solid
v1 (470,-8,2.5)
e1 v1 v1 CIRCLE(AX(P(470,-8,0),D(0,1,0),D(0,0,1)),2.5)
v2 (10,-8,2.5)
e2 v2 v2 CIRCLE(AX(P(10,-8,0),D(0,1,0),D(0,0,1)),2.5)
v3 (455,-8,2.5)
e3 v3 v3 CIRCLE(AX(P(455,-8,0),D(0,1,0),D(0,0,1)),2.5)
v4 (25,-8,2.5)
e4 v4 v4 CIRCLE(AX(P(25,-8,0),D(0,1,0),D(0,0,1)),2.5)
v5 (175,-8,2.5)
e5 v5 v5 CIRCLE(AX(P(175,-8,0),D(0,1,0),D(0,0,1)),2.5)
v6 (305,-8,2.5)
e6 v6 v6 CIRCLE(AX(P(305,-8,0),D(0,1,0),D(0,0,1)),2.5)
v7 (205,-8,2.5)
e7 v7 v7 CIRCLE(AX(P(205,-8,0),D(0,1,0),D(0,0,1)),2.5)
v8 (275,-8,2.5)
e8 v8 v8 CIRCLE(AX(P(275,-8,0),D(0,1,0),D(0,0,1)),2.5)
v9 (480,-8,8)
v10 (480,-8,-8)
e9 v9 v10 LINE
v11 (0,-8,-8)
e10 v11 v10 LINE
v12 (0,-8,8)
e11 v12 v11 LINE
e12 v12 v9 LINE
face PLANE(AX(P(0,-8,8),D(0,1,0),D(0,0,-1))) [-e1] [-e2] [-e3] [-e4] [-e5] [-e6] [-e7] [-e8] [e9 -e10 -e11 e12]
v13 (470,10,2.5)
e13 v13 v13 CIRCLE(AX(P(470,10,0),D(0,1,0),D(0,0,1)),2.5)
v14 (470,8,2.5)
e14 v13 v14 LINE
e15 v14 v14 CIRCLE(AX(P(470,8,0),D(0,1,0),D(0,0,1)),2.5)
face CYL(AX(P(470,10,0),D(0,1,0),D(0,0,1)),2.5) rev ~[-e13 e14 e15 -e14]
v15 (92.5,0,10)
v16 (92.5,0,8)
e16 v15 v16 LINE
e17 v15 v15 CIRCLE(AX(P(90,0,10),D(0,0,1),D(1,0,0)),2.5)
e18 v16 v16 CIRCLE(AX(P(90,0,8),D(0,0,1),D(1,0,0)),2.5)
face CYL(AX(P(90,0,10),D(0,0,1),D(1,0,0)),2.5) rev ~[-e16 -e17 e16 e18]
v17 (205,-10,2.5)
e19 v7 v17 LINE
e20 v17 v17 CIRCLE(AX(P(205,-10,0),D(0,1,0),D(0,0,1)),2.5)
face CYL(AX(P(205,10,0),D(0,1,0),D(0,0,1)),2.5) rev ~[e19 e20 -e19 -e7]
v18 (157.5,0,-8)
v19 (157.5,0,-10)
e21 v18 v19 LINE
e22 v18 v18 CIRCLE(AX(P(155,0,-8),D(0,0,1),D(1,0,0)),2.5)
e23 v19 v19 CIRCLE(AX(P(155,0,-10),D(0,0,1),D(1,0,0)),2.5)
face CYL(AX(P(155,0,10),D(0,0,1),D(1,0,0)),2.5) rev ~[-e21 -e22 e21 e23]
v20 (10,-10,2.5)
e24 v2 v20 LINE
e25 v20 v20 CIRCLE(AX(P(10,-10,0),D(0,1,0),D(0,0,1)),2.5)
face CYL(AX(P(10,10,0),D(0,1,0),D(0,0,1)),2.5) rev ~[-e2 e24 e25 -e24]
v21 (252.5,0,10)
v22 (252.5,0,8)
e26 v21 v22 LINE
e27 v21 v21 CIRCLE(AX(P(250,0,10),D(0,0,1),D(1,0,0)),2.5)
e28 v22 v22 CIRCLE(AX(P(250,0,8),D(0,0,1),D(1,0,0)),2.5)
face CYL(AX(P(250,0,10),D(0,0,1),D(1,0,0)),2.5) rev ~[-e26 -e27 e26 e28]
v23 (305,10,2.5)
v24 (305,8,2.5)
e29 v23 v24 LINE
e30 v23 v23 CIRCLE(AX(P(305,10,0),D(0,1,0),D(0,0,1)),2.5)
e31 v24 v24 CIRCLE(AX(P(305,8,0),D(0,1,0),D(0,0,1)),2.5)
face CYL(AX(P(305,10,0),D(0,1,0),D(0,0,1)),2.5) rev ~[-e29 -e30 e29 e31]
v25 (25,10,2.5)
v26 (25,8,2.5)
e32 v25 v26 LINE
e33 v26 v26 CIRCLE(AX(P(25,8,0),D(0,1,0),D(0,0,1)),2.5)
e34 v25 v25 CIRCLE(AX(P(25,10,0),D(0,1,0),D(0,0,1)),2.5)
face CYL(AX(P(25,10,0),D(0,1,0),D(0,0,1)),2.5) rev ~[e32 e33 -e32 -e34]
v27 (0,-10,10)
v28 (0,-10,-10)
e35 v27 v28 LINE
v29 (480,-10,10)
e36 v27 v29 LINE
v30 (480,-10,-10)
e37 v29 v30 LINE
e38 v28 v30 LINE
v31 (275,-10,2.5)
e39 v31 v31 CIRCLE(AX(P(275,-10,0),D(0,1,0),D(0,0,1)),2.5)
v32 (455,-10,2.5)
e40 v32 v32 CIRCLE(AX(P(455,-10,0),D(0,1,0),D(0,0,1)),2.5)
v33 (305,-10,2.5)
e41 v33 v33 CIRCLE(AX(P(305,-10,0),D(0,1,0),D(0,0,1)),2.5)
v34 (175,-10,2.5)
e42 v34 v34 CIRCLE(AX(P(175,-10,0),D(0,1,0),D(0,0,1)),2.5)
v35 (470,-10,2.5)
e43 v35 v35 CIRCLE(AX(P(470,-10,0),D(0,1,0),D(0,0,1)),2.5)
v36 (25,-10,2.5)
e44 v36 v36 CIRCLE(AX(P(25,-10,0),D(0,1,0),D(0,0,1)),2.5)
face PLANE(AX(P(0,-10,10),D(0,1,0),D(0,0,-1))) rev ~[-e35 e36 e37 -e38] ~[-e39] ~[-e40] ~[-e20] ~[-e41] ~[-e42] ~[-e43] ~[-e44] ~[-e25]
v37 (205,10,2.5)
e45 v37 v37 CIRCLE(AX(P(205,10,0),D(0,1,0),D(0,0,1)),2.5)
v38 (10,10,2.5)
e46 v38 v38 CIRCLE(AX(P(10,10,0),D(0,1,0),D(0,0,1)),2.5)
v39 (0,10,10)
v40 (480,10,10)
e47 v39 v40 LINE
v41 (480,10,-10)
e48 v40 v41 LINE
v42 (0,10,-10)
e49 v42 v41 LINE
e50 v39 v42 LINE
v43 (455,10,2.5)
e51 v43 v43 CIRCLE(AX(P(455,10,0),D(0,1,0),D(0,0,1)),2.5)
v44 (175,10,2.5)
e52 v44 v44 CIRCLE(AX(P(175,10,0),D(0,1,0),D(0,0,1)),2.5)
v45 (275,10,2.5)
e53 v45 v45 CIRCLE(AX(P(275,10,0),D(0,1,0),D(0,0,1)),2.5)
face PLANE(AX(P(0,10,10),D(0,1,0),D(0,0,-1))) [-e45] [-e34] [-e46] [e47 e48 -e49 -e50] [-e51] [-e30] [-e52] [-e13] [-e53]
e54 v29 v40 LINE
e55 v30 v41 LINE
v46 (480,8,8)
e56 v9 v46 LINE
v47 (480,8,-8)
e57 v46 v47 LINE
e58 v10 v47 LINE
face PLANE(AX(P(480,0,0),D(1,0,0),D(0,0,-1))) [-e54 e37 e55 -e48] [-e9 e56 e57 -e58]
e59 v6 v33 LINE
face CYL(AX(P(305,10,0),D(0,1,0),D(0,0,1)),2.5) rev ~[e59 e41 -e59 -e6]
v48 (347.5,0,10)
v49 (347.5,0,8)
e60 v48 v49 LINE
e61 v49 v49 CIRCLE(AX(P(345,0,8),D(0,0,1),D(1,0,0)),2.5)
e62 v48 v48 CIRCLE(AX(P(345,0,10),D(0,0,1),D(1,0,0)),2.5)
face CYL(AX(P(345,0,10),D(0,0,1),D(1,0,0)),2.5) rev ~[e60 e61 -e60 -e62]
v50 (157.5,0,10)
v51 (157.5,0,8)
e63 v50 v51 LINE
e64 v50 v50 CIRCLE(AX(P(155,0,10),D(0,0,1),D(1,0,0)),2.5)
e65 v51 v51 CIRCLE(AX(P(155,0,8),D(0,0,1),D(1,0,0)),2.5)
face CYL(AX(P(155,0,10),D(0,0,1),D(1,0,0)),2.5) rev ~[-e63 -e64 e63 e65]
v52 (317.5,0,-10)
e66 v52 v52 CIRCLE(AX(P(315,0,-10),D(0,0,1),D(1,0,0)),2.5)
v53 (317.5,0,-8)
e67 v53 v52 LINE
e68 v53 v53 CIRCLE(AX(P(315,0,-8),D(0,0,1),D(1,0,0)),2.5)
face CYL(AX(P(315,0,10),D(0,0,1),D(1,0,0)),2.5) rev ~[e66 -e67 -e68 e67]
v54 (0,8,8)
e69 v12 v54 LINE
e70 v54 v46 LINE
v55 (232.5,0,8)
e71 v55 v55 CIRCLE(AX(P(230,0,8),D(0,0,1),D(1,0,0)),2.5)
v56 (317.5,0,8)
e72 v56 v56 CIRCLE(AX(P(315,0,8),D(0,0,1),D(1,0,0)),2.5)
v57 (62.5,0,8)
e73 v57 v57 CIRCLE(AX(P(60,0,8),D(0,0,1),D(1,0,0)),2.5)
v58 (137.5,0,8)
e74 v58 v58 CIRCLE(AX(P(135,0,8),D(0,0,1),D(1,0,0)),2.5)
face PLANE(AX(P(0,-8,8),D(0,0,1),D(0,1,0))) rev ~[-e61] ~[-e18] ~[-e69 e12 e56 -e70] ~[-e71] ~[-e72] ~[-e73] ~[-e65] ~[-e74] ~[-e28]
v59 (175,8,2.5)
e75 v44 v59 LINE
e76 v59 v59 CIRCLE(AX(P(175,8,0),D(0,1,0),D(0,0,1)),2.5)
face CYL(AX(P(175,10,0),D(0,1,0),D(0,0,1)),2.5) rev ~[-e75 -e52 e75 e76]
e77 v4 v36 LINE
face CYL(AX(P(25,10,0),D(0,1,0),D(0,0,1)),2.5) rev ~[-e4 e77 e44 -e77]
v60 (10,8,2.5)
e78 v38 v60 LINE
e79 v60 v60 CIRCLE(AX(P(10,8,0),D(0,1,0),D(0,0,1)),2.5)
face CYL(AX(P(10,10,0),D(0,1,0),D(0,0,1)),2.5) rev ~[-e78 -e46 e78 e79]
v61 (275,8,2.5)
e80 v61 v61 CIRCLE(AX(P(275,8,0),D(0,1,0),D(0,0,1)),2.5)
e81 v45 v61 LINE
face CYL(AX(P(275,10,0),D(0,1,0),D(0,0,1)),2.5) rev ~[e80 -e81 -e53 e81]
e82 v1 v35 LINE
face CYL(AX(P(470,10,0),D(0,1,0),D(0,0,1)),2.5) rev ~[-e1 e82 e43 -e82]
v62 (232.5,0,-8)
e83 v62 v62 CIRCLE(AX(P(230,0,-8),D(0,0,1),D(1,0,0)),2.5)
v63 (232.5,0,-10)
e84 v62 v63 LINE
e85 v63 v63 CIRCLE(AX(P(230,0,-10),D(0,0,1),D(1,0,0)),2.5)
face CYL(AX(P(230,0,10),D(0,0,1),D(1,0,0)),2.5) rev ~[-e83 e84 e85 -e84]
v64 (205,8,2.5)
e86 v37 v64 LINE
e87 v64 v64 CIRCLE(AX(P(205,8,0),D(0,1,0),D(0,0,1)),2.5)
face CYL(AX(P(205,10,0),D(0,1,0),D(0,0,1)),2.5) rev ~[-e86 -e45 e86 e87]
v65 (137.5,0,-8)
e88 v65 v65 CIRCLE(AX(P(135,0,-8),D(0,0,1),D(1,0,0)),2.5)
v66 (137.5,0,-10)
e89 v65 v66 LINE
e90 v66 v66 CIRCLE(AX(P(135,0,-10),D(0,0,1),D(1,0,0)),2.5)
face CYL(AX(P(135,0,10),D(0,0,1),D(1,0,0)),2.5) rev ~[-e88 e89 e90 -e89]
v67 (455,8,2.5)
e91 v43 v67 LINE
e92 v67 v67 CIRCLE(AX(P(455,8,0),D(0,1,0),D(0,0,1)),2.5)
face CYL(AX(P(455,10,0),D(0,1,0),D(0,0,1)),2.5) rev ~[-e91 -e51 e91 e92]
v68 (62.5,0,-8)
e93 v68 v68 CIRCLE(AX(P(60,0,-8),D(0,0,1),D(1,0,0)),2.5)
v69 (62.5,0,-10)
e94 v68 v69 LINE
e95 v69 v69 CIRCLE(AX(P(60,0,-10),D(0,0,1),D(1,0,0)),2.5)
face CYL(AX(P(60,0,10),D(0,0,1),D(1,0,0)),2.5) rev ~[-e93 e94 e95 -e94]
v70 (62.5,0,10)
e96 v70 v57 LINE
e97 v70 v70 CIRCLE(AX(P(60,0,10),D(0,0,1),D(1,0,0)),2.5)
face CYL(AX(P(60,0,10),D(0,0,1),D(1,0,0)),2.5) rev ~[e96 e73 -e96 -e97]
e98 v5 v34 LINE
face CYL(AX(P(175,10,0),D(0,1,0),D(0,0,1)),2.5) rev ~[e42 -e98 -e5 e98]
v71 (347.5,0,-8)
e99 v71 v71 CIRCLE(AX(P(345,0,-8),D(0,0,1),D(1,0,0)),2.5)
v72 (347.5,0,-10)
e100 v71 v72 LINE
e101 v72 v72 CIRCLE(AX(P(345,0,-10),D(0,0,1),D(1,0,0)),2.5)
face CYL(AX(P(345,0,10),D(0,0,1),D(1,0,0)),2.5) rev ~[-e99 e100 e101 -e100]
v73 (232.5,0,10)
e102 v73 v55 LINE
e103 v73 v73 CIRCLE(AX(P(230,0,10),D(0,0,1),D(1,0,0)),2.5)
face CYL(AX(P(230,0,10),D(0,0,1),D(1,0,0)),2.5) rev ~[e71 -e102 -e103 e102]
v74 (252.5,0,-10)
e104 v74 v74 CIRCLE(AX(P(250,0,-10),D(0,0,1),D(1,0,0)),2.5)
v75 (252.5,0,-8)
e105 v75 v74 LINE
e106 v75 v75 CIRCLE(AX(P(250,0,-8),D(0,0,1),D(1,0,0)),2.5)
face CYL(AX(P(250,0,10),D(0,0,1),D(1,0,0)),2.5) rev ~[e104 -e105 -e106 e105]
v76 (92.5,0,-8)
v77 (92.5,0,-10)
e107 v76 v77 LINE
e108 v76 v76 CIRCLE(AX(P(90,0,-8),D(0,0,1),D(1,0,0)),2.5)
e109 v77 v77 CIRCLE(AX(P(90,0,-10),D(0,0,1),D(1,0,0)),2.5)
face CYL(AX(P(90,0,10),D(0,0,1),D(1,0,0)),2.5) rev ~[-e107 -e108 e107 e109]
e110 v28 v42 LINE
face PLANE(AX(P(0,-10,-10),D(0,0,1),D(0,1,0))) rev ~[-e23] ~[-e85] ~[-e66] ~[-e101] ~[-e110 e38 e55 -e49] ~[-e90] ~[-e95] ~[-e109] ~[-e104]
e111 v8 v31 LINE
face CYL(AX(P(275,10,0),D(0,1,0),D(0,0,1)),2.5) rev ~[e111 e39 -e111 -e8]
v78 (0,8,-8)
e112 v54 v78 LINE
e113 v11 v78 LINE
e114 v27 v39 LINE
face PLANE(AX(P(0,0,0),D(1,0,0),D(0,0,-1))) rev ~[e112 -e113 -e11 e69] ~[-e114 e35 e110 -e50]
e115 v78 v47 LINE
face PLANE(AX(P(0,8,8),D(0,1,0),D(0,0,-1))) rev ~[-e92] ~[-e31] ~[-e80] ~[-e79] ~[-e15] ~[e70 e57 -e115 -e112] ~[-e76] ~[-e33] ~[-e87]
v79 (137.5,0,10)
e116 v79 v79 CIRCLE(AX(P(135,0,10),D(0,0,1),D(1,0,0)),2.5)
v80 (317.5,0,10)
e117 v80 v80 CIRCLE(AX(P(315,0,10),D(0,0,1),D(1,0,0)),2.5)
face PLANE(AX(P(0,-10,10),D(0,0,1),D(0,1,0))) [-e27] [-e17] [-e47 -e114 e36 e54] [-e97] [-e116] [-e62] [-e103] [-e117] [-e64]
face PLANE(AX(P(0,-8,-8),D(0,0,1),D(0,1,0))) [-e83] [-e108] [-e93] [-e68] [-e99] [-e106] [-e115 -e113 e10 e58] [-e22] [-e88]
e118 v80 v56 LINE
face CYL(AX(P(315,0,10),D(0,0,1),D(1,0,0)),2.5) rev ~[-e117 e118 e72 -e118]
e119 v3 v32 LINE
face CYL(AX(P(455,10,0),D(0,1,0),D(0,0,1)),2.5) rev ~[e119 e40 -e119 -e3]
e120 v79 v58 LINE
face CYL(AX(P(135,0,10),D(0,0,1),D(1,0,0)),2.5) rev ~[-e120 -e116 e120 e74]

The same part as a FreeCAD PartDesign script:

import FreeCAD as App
import Part
import Sketcher


def add_polygon(sketch, points):
    """Adds a closed chain of lines whose ends are joined by coincident constraints."""
    first, n = sketch.GeometryCount, len(points)
    for a, b in zip(points, points[1:] + points[:1]):
        sketch.addGeometry(Part.LineSegment(App.Vector(*a, 0), App.Vector(*b, 0)), False)
    for i in range(n):
        sketch.addConstraint(Sketcher.Constraint("Coincident", first + i, 2, first + (i + 1) % n, 1))

doc = App.newDocument("Part")
body = doc.addObject("PartDesign::Body", "Body")

# Sketch on YZ plane
sketch1 = doc.addObject("Sketcher::SketchObject", "Sketch")
body.addObject(sketch1)
sketch1.AttachmentSupport = (doc.YZ_Plane, [""])
sketch1.MapMode = "FlatFace"
add_polygon(sketch1, [(10, 10), (-10, 10), (-10, -10), (10, -10)])  # lines 0-3
add_polygon(sketch1, [(-8, -8), (-8, 8), (8, 8), (8, -8)])  # lines 4-7
sketch1.addConstraint(Sketcher.Constraint("Horizontal", 0))
sketch1.addConstraint(Sketcher.Constraint("Vertical", 1))
sketch1.addConstraint(Sketcher.Constraint("Horizontal", 2))
sketch1.addConstraint(Sketcher.Constraint("Vertical", 3))
sketch1.addConstraint(Sketcher.Constraint("Vertical", 4))
sketch1.addConstraint(Sketcher.Constraint("Horizontal", 5))
sketch1.addConstraint(Sketcher.Constraint("Vertical", 6))
sketch1.addConstraint(Sketcher.Constraint("Horizontal", 7))
sketch1.addConstraint(Sketcher.Constraint("Symmetric", 0, 2, 2, 2, -1, 1))
sketch1.addConstraint(Sketcher.Constraint("Symmetric", 4, 2, 6, 2, -1, 1))
sketch1.addConstraint(Sketcher.Constraint("Equal", 2, 1))
sketch1.addConstraint(Sketcher.Constraint("Equal", 7, 4))
sketch1.addConstraint(Sketcher.Constraint("DistanceX", 0, 2, 0, 1, 20.0))
sketch1.addConstraint(Sketcher.Constraint("DistanceX", 5, 1, 5, 2, 16.0))
pad1 = doc.addObject("PartDesign::Pad", "Pad")
body.addObject(pad1)
pad1.Profile = sketch1
pad1.Length = 480

# Sketch on XZ plane
sketch2 = doc.addObject("Sketcher::SketchObject", "Sketch001")
body.addObject(sketch2)
sketch2.AttachmentSupport = (doc.XZ_Plane, [""])
sketch2.MapMode = "FlatFace"
sketch2.AttachmentOffset = App.Placement(App.Vector(0, 0, -10), App.Rotation())
sketch2.addGeometry(Part.Circle(App.Vector(10, 0, 0), App.Vector(0, 0, 1), 2.5), False)
sketch2.addGeometry(Part.Circle(App.Vector(470, 0, 0), App.Vector(0, 0, 1), 2.5), False)
sketch2.addGeometry(Part.Circle(App.Vector(25, 0, 0), App.Vector(0, 0, 1), 2.5), False)
sketch2.addGeometry(Part.Circle(App.Vector(455, 0, 0), App.Vector(0, 0, 1), 2.5), False)
sketch2.addConstraint(Sketcher.Constraint("Equal", 0, 1))
sketch2.addConstraint(Sketcher.Constraint("Equal", 1, 2))
sketch2.addConstraint(Sketcher.Constraint("Equal", 2, 3))
sketch2.addConstraint(Sketcher.Constraint("PointOnObject", 0, 3, -1))
sketch2.addConstraint(Sketcher.Constraint("PointOnObject", 1, 3, -1))
sketch2.addConstraint(Sketcher.Constraint("PointOnObject", 2, 3, -1))
sketch2.addConstraint(Sketcher.Constraint("PointOnObject", 3, 3, -1))
sketch2.addConstraint(Sketcher.Constraint("Diameter", 0, 5.0))
sketch2.addConstraint(Sketcher.Constraint("DistanceX", -1, 1, 0, 3, 10.0))
sketch2.addConstraint(Sketcher.Constraint("DistanceX", -1, 1, 1, 3, 470.0))
sketch2.addConstraint(Sketcher.Constraint("DistanceX", -1, 1, 2, 3, 25.0))
sketch2.addConstraint(Sketcher.Constraint("DistanceX", -1, 1, 3, 3, 455.0))
pocket1 = doc.addObject("PartDesign::Pocket", "Pocket")
body.addObject(pocket1)
pocket1.Profile = sketch2
pocket1.Type = "ThroughAll"
pocket1.Reversed = True

# Sketch on XZ plane
sketch3 = doc.addObject("Sketcher::SketchObject", "Sketch002")
body.addObject(sketch3)
sketch3.AttachmentSupport = (doc.XZ_Plane, [""])
sketch3.MapMode = "FlatFace"
sketch3.AttachmentOffset = App.Placement(App.Vector(0, 0, -10), App.Rotation())
sketch3.addGeometry(Part.Circle(App.Vector(175, 0, 0), App.Vector(0, 0, 1), 2.5), False)
sketch3.addGeometry(Part.Circle(App.Vector(305, 0, 0), App.Vector(0, 0, 1), 2.5), False)
sketch3.addGeometry(Part.Circle(App.Vector(205, 0, 0), App.Vector(0, 0, 1), 2.5), False)
sketch3.addGeometry(Part.Circle(App.Vector(275, 0, 0), App.Vector(0, 0, 1), 2.5), False)
sketch3.addConstraint(Sketcher.Constraint("Equal", 0, 1))
sketch3.addConstraint(Sketcher.Constraint("Equal", 1, 2))
sketch3.addConstraint(Sketcher.Constraint("Equal", 2, 3))
sketch3.addConstraint(Sketcher.Constraint("PointOnObject", 0, 3, -1))
sketch3.addConstraint(Sketcher.Constraint("PointOnObject", 1, 3, -1))
sketch3.addConstraint(Sketcher.Constraint("PointOnObject", 2, 3, -1))
sketch3.addConstraint(Sketcher.Constraint("PointOnObject", 3, 3, -1))
sketch3.addConstraint(Sketcher.Constraint("Diameter", 0, 5.0))
sketch3.addConstraint(Sketcher.Constraint("DistanceX", -1, 1, 0, 3, 175.0))
sketch3.addConstraint(Sketcher.Constraint("DistanceX", -1, 1, 1, 3, 305.0))
sketch3.addConstraint(Sketcher.Constraint("DistanceX", -1, 1, 2, 3, 205.0))
sketch3.addConstraint(Sketcher.Constraint("DistanceX", -1, 1, 3, 3, 275.0))
pocket2 = doc.addObject("PartDesign::Pocket", "Pocket001")
body.addObject(pocket2)
pocket2.Profile = sketch3
pocket2.Type = "ThroughAll"
pocket2.Reversed = True

# Sketch on XY plane
sketch4 = doc.addObject("Sketcher::SketchObject", "Sketch003")
body.addObject(sketch4)
sketch4.AttachmentSupport = (doc.XY_Plane, [""])
sketch4.MapMode = "FlatFace"
sketch4.AttachmentOffset = App.Placement(App.Vector(0, 0, 10), App.Rotation())
sketch4.addGeometry(Part.Circle(App.Vector(60, 0, 0), App.Vector(0, 0, 1), 2.5), False)
sketch4.addGeometry(Part.Circle(App.Vector(90, 0, 0), App.Vector(0, 0, 1), 2.5), False)
sketch4.addGeometry(Part.Circle(App.Vector(315, 0, 0), App.Vector(0, 0, 1), 2.5), False)
sketch4.addGeometry(Part.Circle(App.Vector(345, 0, 0), App.Vector(0, 0, 1), 2.5), False)
sketch4.addGeometry(Part.Circle(App.Vector(135, 0, 0), App.Vector(0, 0, 1), 2.5), False)
sketch4.addGeometry(Part.Circle(App.Vector(155, 0, 0), App.Vector(0, 0, 1), 2.5), False)
sketch4.addGeometry(Part.Circle(App.Vector(230, 0, 0), App.Vector(0, 0, 1), 2.5), False)
sketch4.addGeometry(Part.Circle(App.Vector(250, 0, 0), App.Vector(0, 0, 1), 2.5), False)
sketch4.addConstraint(Sketcher.Constraint("Equal", 0, 1))
sketch4.addConstraint(Sketcher.Constraint("Equal", 1, 2))
sketch4.addConstraint(Sketcher.Constraint("Equal", 2, 3))
sketch4.addConstraint(Sketcher.Constraint("Equal", 3, 4))
sketch4.addConstraint(Sketcher.Constraint("Equal", 4, 5))
sketch4.addConstraint(Sketcher.Constraint("Equal", 5, 6))
sketch4.addConstraint(Sketcher.Constraint("Equal", 6, 7))
sketch4.addConstraint(Sketcher.Constraint("PointOnObject", 0, 3, -1))
sketch4.addConstraint(Sketcher.Constraint("PointOnObject", 1, 3, -1))
sketch4.addConstraint(Sketcher.Constraint("PointOnObject", 2, 3, -1))
sketch4.addConstraint(Sketcher.Constraint("PointOnObject", 3, 3, -1))
sketch4.addConstraint(Sketcher.Constraint("PointOnObject", 4, 3, -1))
sketch4.addConstraint(Sketcher.Constraint("PointOnObject", 5, 3, -1))
sketch4.addConstraint(Sketcher.Constraint("PointOnObject", 6, 3, -1))
sketch4.addConstraint(Sketcher.Constraint("PointOnObject", 7, 3, -1))
sketch4.addConstraint(Sketcher.Constraint("Diameter", 0, 5.0))
sketch4.addConstraint(Sketcher.Constraint("DistanceX", -1, 1, 0, 3, 60.0))
sketch4.addConstraint(Sketcher.Constraint("DistanceX", -1, 1, 1, 3, 90.0))
sketch4.addConstraint(Sketcher.Constraint("DistanceX", -1, 1, 2, 3, 315.0))
sketch4.addConstraint(Sketcher.Constraint("DistanceX", -1, 1, 3, 3, 345.0))
sketch4.addConstraint(Sketcher.Constraint("DistanceX", -1, 1, 4, 3, 135.0))
sketch4.addConstraint(Sketcher.Constraint("DistanceX", -1, 1, 5, 3, 155.0))
sketch4.addConstraint(Sketcher.Constraint("DistanceX", -1, 1, 6, 3, 230.0))
sketch4.addConstraint(Sketcher.Constraint("DistanceX", -1, 1, 7, 3, 250.0))
pocket3 = doc.addObject("PartDesign::Pocket", "Pocket002")
body.addObject(pocket3)
pocket3.Profile = sketch4
pocket3.Length = 20

doc.recompute()
